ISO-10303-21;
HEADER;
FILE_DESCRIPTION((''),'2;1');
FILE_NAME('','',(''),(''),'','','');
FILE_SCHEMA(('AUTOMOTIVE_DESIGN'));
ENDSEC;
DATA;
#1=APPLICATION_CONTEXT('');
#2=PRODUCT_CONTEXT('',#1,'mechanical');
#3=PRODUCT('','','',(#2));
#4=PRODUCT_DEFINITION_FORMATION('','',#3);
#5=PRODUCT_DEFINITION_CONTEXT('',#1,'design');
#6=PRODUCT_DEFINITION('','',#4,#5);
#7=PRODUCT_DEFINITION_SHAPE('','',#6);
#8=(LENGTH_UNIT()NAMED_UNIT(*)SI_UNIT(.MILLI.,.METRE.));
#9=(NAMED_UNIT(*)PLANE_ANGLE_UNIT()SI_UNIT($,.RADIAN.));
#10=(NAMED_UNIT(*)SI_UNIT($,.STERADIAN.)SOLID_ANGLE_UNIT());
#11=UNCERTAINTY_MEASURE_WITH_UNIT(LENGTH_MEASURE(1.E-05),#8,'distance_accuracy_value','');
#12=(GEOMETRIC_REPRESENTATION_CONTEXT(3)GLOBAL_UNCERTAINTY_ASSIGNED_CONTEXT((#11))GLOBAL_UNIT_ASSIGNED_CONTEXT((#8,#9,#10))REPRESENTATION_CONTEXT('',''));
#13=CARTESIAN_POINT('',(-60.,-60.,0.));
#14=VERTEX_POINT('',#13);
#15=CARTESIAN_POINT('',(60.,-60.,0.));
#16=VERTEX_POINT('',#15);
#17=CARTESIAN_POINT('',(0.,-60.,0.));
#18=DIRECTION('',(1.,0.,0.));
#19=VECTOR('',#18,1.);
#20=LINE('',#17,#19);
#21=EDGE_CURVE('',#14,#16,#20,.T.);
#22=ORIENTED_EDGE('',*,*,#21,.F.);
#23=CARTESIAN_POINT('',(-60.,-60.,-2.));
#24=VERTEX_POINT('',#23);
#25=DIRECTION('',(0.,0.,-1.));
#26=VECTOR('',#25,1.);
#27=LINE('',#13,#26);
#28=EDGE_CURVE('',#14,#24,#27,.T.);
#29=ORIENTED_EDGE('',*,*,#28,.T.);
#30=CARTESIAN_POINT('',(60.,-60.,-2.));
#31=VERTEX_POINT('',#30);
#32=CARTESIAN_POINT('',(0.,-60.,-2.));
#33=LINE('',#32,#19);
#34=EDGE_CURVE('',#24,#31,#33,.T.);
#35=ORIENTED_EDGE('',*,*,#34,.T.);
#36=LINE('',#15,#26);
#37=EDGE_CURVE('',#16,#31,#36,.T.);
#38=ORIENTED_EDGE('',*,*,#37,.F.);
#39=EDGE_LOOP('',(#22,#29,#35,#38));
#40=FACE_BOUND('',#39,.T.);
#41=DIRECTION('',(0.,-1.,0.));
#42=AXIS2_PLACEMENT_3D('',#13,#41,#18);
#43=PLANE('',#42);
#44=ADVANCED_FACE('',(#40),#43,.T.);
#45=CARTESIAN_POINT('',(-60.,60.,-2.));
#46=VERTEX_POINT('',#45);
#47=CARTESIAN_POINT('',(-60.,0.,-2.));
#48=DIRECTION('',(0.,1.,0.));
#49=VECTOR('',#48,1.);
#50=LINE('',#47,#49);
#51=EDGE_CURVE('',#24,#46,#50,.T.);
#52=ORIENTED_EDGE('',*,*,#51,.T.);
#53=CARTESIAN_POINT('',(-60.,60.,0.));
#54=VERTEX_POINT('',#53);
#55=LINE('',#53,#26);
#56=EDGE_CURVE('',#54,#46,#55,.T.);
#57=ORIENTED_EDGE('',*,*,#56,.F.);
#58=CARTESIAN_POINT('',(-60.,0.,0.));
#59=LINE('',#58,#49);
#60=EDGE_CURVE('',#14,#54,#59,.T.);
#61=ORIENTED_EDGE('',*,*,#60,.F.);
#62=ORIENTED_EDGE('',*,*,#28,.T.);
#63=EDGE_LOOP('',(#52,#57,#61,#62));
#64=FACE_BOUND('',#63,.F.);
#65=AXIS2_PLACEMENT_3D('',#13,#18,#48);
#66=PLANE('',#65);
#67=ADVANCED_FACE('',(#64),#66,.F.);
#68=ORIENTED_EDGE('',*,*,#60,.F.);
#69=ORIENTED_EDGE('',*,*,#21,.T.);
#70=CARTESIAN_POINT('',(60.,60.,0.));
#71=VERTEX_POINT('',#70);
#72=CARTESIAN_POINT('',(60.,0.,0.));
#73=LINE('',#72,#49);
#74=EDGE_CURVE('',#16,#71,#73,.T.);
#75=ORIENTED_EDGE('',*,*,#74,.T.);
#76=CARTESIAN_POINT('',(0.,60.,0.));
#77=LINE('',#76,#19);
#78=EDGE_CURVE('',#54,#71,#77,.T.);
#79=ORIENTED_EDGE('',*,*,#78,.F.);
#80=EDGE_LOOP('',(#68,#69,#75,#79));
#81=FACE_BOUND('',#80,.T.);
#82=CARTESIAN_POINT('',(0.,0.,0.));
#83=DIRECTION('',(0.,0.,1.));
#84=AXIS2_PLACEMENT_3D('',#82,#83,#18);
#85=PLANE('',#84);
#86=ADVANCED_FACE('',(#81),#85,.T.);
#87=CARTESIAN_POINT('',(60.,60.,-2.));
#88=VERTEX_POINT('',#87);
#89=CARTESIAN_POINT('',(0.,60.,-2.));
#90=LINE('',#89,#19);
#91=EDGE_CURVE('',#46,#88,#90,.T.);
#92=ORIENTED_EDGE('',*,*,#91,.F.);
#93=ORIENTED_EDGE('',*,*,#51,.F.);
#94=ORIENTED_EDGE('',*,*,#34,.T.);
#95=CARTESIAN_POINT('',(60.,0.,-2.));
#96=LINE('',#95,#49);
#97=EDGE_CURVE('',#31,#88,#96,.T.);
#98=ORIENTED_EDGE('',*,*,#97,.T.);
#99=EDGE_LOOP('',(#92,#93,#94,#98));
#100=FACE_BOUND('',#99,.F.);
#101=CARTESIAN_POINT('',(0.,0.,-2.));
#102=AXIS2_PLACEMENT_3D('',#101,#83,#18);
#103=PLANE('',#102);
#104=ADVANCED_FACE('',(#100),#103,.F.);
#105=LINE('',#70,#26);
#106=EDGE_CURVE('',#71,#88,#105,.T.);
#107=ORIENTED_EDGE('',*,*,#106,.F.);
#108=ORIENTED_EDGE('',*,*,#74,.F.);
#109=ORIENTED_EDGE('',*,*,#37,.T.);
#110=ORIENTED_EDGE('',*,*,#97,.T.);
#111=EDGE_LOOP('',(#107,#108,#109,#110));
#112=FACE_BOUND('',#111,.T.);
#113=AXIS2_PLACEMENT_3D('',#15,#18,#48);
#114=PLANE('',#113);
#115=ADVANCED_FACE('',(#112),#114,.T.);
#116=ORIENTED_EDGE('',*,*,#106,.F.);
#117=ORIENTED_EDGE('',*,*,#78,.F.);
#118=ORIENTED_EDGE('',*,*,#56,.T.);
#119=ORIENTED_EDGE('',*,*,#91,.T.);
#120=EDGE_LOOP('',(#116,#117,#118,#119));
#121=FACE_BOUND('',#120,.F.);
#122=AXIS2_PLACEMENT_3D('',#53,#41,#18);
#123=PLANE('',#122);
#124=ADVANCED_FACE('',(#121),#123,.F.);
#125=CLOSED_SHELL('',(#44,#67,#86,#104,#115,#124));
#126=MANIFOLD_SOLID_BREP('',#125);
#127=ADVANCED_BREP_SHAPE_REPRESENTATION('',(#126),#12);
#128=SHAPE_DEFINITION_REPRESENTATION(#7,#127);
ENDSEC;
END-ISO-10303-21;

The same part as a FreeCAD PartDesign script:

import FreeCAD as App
import Part
import Sketcher
Q = App.Units.Quantity

doc = App.newDocument("Part")
body = doc.addObject("PartDesign::Body", "Body")

sketch1 = body.newObject("Sketcher::SketchObject", "Sketch")
sketch1.AttachmentSupport = (doc.getObject("XY_Plane"), [""])
sketch1.MapMode = "FlatFace"
sketch1.addGeometry(Part.LineSegment(App.Vector(-60, 60, 0), App.Vector(-60, -60, 0)), False)
sketch1.addGeometry(Part.LineSegment(App.Vector(-60, -60, 0), App.Vector(60, -60, 0)), False)
sketch1.addGeometry(Part.LineSegment(App.Vector(60, -60, 0), App.Vector(60, 60, 0)), False)
sketch1.addGeometry(Part.LineSegment(App.Vector(60, 60, 0), App.Vector(-60, 60, 0)), False)
sketch1.addConstraint(Sketcher.Constraint("Coincident", 0, 2, 1, 1))
sketch1.addConstraint(Sketcher.Constraint("Coincident", 1, 2, 2, 1))
sketch1.addConstraint(Sketcher.Constraint("Coincident", 2, 2, 3, 1))
sketch1.addConstraint(Sketcher.Constraint("Coincident", 3, 2, 0, 1))
sketch1.addConstraint(Sketcher.Constraint("Vertical", 0))
sketch1.addConstraint(Sketcher.Constraint("Horizontal", 1))
sketch1.addConstraint(Sketcher.Constraint("Vertical", 2))
sketch1.addConstraint(Sketcher.Constraint("Horizontal", 3))
sketch1.addConstraint(Sketcher.Constraint("Symmetric", 0, 2, 2, 2, -1, 1))
sketch1.addConstraint(Sketcher.Constraint("Equal", 3, 0))
sketch1.addConstraint(Sketcher.Constraint("DistanceX", 1, 1, 1, 2, Q("120 mm")))
pad1 = body.newObject("PartDesign::Pad", "Pad")
pad1.Profile = sketch1
pad1.Length = 2
pad1.Reversed = True

doc.recompute()
